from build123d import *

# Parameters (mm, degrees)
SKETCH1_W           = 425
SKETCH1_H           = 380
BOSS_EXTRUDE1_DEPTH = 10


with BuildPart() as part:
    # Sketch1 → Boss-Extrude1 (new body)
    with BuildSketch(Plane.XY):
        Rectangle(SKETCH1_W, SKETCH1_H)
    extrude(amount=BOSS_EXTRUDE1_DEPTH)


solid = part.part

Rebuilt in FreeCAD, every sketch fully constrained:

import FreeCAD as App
import Part
import Sketcher

V = App.Vector

doc = App.newDocument("Part")
body = doc.addObject("PartDesign::Body", "Body")

sketch1 = doc.addObject("Sketcher::SketchObject", "Sketch")
body.addObject(sketch1)
sketch1.AttachmentSupport = (doc.XY_Plane, [""])
sketch1.MapMode = "FlatFace"
sketch1.addGeometry(Part.LineSegment(V(-212, 190, 0), V(-212, -190, 0)), False)
sketch1.addGeometry(Part.LineSegment(V(-212, -190, 0), V(212, -190, 0)), False)
sketch1.addGeometry(Part.LineSegment(V(212, -190, 0), V(212, 190, 0)), False)
sketch1.addGeometry(Part.LineSegment(V(212, 190, 0), V(-212, 190, 0)), False)
sketch1.addConstraint(Sketcher.Constraint("Coincident", 0, 2, 1, 1))
sketch1.addConstraint(Sketcher.Constraint("Coincident", 1, 2, 2, 1))
sketch1.addConstraint(Sketcher.Constraint("Coincident", 2, 2, 3, 1))
sketch1.addConstraint(Sketcher.Constraint("Coincident", 3, 2, 0, 1))
sketch1.addConstraint(Sketcher.Constraint("Vertical", 0))
sketch1.addConstraint(Sketcher.Constraint("Horizontal", 1))
sketch1.addConstraint(Sketcher.Constraint("Vertical", 2))
sketch1.addConstraint(Sketcher.Constraint("Horizontal", 3))
sketch1.addConstraint(Sketcher.Constraint("Symmetric", 0, 2, 2, 2, -1, 1))
sketch1.addConstraint(Sketcher.Constraint("DistanceX", 1, 1, 1, 2, 425.0))
sketch1.addConstraint(Sketcher.Constraint("DistanceY", 0, 2, 0, 1, 380.0))
pad1 = doc.addObject("PartDesign::Pad", "Pad")
body.addObject(pad1)
pad1.Profile = sketch1
pad1.Length = 10

doc.recompute()
